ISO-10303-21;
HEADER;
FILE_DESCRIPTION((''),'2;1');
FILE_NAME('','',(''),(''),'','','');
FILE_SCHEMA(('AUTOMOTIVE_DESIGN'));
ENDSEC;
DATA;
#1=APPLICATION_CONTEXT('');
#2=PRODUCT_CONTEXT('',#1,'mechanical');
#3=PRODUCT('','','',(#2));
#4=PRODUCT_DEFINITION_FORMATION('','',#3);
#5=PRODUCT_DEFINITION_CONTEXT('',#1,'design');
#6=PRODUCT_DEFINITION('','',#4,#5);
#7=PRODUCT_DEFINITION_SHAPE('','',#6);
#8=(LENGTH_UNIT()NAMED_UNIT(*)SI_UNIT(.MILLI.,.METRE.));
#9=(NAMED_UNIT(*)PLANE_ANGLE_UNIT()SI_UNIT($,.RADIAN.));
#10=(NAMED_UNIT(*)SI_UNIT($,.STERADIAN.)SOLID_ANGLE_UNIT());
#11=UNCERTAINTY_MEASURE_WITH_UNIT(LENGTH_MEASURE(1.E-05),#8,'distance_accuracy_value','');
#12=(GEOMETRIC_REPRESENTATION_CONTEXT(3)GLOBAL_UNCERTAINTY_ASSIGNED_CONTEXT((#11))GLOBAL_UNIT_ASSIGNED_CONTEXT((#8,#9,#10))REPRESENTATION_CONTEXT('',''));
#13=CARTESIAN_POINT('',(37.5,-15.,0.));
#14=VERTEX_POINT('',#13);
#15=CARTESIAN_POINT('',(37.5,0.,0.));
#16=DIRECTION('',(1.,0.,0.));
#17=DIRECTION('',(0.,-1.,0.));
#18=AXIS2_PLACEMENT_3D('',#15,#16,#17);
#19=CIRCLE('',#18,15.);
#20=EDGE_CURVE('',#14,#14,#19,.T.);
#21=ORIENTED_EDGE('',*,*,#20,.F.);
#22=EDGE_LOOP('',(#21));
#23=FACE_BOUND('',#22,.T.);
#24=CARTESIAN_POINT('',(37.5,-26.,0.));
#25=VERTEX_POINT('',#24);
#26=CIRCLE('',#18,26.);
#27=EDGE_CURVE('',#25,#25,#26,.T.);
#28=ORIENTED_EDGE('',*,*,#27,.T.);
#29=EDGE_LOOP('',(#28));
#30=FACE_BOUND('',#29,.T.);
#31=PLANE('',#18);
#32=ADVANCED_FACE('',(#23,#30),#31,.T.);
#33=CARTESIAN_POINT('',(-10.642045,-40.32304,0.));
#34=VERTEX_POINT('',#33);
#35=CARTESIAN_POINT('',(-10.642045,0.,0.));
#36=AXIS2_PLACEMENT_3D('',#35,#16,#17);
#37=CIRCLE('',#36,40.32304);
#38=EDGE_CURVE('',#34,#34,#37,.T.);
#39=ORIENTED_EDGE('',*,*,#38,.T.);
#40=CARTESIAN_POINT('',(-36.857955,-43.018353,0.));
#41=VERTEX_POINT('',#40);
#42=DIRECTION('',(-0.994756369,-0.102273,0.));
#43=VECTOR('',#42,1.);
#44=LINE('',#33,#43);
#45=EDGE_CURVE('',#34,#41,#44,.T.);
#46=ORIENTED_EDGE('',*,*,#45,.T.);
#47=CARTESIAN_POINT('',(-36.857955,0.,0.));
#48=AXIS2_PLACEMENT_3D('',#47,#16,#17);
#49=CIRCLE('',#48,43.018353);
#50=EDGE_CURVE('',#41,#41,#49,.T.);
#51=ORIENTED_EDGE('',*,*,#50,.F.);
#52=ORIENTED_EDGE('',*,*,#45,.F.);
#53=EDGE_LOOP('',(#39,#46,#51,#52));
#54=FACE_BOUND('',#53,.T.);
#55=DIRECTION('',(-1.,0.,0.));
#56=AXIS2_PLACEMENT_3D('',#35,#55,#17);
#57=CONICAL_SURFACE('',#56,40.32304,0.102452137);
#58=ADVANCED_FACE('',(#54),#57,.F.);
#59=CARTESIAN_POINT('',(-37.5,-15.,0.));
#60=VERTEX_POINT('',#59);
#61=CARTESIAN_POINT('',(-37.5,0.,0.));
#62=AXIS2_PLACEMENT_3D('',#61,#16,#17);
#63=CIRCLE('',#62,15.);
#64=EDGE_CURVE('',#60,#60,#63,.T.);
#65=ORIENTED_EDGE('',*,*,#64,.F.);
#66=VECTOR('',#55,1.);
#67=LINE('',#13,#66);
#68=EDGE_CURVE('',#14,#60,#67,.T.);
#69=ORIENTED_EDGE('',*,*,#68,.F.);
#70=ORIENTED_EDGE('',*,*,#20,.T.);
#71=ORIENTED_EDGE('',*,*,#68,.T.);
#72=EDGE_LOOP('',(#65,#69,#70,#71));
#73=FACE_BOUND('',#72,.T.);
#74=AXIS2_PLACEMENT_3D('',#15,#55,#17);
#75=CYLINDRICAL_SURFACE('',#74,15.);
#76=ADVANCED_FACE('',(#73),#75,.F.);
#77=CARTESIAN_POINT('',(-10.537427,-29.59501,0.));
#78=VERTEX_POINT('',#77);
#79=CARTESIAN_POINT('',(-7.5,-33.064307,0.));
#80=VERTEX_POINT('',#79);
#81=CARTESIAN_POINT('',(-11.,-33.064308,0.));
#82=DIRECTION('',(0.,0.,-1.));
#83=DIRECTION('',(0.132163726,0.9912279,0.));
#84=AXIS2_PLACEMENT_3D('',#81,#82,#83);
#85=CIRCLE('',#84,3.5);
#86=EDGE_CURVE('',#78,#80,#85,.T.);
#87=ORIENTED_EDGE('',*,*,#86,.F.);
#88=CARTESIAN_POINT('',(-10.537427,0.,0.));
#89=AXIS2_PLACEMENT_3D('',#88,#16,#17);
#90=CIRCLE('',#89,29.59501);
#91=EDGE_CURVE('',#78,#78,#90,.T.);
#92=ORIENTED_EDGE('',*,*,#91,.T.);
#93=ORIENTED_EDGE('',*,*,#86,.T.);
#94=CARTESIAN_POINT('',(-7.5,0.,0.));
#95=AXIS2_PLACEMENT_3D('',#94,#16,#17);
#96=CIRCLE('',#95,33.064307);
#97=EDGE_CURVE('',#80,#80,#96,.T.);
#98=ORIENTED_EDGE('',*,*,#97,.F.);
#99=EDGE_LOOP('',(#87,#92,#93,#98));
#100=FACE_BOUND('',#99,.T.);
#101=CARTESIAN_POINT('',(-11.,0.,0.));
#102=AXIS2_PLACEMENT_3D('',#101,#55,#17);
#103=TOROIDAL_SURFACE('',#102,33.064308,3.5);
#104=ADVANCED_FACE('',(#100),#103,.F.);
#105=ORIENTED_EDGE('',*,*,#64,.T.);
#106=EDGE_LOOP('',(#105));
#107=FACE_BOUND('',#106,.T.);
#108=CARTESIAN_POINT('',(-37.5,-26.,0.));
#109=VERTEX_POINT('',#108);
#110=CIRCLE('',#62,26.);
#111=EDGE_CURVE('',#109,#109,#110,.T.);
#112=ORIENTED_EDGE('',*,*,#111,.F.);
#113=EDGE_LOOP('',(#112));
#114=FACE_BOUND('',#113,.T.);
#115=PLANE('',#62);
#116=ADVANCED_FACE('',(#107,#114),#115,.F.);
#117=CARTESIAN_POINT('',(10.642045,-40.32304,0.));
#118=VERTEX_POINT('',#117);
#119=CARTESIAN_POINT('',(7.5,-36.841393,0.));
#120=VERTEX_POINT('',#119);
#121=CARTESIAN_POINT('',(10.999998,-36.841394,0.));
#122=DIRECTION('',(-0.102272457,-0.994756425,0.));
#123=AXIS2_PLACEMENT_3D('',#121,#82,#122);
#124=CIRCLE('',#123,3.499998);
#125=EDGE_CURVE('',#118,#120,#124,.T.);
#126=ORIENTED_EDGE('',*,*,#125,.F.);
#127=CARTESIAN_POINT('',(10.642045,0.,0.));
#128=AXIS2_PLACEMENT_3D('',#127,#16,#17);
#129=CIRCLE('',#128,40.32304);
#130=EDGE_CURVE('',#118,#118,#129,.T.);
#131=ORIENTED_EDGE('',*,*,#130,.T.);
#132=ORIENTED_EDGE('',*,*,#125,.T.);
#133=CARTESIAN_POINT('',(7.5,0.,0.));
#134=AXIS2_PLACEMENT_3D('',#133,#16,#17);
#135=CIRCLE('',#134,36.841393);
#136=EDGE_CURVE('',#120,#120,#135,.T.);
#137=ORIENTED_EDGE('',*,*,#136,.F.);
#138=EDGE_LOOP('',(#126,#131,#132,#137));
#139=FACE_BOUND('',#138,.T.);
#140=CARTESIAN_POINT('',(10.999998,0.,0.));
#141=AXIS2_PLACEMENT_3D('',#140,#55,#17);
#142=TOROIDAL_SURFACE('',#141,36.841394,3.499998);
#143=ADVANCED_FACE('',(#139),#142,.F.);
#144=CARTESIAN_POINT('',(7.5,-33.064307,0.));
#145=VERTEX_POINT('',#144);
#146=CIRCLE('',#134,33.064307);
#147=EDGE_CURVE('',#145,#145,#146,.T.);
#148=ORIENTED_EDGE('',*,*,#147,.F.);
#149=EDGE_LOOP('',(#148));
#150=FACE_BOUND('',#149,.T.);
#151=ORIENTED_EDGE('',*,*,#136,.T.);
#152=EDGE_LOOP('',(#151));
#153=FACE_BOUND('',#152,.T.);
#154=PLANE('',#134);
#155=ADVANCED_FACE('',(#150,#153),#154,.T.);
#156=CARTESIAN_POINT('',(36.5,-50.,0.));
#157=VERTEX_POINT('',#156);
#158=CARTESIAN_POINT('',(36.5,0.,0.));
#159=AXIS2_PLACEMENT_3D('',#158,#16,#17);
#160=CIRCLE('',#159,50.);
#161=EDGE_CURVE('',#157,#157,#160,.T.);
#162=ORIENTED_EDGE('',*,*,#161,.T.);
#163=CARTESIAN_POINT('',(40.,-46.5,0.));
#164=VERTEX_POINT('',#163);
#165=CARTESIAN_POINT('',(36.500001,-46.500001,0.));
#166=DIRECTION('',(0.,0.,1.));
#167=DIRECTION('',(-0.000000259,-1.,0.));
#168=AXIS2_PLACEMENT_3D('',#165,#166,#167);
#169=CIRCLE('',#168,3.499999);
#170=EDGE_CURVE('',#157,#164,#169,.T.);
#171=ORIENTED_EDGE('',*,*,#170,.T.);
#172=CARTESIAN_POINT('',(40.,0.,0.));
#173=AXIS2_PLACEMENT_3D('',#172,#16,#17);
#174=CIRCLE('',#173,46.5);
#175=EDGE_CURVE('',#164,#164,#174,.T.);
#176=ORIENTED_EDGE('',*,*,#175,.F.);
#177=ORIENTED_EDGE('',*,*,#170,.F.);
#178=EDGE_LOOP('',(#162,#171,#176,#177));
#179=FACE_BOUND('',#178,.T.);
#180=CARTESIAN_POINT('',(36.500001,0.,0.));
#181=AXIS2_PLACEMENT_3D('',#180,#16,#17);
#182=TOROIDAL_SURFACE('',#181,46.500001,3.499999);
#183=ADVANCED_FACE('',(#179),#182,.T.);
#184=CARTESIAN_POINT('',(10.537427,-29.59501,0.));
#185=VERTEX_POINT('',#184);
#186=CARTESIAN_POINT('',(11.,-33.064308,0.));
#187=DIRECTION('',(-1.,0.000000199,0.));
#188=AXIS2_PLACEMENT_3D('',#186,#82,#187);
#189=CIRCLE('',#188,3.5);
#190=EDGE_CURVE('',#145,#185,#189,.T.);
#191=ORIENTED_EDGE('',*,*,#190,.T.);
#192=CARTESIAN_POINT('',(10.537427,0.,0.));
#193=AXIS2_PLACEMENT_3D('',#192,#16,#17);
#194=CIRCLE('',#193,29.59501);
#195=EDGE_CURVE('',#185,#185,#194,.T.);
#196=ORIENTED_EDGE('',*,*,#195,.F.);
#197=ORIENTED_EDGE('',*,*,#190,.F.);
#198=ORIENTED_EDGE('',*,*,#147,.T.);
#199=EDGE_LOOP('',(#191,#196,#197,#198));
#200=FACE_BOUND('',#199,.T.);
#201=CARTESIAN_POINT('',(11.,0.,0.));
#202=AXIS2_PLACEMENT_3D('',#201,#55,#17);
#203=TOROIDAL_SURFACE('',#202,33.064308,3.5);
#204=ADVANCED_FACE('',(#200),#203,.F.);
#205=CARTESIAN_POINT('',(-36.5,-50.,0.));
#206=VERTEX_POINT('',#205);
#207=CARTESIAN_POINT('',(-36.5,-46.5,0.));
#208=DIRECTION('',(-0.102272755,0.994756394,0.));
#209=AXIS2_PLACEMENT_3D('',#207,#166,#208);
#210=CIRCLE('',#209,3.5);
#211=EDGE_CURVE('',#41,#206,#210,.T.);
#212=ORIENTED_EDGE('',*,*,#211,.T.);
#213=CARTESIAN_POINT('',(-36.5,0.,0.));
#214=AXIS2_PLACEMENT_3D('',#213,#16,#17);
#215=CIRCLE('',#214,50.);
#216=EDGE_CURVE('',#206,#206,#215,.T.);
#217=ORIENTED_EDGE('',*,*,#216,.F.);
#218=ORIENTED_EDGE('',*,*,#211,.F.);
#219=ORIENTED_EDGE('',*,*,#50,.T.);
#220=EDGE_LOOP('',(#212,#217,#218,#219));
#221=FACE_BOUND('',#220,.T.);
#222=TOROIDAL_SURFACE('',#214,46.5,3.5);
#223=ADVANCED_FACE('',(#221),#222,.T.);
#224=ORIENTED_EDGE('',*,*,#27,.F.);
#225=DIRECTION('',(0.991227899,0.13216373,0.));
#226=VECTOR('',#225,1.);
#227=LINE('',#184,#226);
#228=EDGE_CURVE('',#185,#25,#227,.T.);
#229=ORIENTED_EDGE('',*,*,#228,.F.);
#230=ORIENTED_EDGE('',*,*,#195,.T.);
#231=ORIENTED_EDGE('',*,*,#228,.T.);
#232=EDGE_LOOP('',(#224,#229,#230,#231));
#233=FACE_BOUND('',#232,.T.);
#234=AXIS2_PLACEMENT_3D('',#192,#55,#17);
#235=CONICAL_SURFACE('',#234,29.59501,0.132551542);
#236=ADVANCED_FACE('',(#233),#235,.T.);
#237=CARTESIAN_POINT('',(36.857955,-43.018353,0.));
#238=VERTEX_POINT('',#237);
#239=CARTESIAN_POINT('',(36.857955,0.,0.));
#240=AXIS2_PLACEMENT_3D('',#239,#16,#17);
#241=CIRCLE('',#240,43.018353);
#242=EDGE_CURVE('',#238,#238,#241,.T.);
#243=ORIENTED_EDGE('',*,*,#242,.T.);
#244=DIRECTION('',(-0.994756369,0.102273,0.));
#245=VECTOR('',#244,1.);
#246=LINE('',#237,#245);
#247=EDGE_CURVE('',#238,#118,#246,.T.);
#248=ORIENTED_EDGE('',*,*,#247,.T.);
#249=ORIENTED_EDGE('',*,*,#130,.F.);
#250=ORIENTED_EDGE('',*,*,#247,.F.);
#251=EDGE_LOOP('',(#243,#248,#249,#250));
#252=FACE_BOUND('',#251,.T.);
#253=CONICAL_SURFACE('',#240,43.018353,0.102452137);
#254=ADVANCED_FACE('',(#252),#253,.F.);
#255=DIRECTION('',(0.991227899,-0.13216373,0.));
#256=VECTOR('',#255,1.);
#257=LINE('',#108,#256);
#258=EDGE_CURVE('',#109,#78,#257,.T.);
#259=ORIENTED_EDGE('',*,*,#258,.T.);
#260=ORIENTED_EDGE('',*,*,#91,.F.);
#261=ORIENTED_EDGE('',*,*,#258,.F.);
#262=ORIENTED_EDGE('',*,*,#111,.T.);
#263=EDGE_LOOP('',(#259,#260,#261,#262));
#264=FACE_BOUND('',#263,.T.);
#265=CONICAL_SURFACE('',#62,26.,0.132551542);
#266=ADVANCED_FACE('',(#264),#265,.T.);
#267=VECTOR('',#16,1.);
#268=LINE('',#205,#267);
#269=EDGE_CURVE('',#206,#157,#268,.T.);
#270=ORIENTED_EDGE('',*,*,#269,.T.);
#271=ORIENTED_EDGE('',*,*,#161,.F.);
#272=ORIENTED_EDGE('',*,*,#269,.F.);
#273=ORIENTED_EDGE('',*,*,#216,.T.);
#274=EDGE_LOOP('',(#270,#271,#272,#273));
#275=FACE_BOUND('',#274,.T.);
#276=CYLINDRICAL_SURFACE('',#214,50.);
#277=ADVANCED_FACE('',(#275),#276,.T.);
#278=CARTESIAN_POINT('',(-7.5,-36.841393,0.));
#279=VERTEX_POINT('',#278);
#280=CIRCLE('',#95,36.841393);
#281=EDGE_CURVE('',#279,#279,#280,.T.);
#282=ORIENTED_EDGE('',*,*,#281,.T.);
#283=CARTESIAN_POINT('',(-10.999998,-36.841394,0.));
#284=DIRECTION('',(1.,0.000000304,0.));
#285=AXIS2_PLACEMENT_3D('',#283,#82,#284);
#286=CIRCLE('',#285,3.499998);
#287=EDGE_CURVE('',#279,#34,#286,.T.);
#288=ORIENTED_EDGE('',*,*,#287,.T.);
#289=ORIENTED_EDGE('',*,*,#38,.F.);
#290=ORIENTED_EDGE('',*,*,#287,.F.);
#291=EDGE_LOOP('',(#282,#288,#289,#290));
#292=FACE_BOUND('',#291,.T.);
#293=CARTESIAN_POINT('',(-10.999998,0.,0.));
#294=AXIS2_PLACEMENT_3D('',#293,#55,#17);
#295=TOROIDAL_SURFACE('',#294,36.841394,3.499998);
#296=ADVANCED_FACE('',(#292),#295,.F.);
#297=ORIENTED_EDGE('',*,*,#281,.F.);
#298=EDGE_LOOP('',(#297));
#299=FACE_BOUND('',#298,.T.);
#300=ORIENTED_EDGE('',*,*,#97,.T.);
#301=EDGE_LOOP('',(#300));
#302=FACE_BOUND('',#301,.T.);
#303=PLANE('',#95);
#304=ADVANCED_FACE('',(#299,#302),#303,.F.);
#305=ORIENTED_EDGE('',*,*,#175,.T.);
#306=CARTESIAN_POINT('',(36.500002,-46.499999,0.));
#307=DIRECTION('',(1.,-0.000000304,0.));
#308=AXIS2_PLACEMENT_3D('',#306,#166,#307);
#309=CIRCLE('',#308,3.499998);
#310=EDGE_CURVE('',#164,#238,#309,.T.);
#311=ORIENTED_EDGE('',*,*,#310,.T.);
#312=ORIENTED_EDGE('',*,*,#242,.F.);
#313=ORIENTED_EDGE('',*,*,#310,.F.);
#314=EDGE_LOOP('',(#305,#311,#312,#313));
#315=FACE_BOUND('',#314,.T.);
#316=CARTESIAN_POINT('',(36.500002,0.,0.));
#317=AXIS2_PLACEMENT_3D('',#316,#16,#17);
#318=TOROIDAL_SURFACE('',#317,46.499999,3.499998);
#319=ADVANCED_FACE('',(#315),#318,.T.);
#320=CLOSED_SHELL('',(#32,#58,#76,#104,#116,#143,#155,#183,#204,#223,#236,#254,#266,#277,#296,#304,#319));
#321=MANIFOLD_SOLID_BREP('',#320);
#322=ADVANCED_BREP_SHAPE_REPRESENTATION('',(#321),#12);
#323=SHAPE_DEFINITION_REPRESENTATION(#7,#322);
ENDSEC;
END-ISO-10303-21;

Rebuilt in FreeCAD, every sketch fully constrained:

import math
import FreeCAD as App
import Part
import Sketcher
from FreeCAD import Vector
Q = App.Units.Quantity

doc = App.newDocument("Part")
body = doc.addObject("PartDesign::Body", "Body")

# Sketch on XY plane
sketch1 = body.newObject("Sketcher::SketchObject", "Sketch")
sketch1.AttachmentSupport = (doc.getObject("XY_Plane"), [""])
sketch1.MapMode = "FlatFace"
sketch1.addGeometry([
    Part.LineSegment(Vector(37.5, -15, 0), Vector(-37.5, -15, 0)),  # 0
    Part.LineSegment(Vector(-37.5, -15, 0), Vector(-37.5, -26, 0)),  # 1
    Part.LineSegment(Vector(-37.5, -26, 0), Vector(-10.537427, -29.59501, 0)),  # 2
    Part.ArcOfCircle(Part.Circle(Vector(-11, -33.064308, 0), Vector(0, 0, 1), 3.5), math.radians(0.000011), math.radians(82.405356)),  # 3
    Part.LineSegment(Vector(-7.5, -33.064307, 0), Vector(-7.5, -36.841393, 0)),  # 4
    Part.ArcOfCircle(Part.Circle(Vector(-10.999998, -36.841394, 0), Vector(0, 0, 1), 3.499998), math.radians(-84.129956), math.radians(0.000017)),  # 5
    Part.LineSegment(Vector(-10.642045, -40.32304, 0), Vector(-36.857955, -43.018353, 0)),  # 6
    Part.ArcOfCircle(Part.Circle(Vector(-36.5, -46.5, 0), Vector(0, 0, 1), 3.5), math.radians(95.870061), math.radians(270.000006)),  # 7
    Part.LineSegment(Vector(-36.5, -50, 0), Vector(36.5, -50, 0)),  # 8
    Part.ArcOfCircle(Part.Circle(Vector(36.500001, -46.500001, 0), Vector(0, 0, 1), 3.499999), math.radians(-90.000015), math.radians(0.000015)),  # 9
    Part.ArcOfCircle(Part.Circle(Vector(36.500002, -46.499999, 0), Vector(0, 0, 1), 3.499998), math.radians(-0.000017), math.radians(84.129956)),  # 10
    Part.LineSegment(Vector(36.857955, -43.018353, 0), Vector(10.642045, -40.32304, 0)),  # 11
    Part.ArcOfCircle(Part.Circle(Vector(10.999998, -36.841394, 0), Vector(0, 0, 1), 3.499998), math.radians(179.999983), math.radians(264.129956)),  # 12
    Part.LineSegment(Vector(7.5, -36.841393, 0), Vector(7.5, -33.064307, 0)),  # 13
    Part.ArcOfCircle(Part.Circle(Vector(11, -33.064308, 0), Vector(0, 0, 1), 3.5), math.radians(97.594644), math.radians(179.999989)),  # 14
    Part.LineSegment(Vector(10.537427, -29.59501, 0), Vector(37.5, -26, 0)),  # 15
    Part.LineSegment(Vector(37.5, -26, 0), Vector(37.5, -15, 0)),  # 16
], False)
sketch1.addConstraint([
    Sketcher.Constraint("Coincident", 0, 2, 1, 1),
    Sketcher.Constraint("Coincident", 1, 2, 2, 1),
    Sketcher.Constraint("Tangent", 2, 2, 3, 2),
    Sketcher.Constraint("Tangent", 3, 1, 4, 1),
    Sketcher.Constraint("Tangent", 4, 2, 5, 2),
    Sketcher.Constraint("Tangent", 5, 1, 6, 1),
    Sketcher.Constraint("Tangent", 6, 2, 7, 1),
    Sketcher.Constraint("Tangent", 7, 2, 8, 1),
    Sketcher.Constraint("Tangent", 8, 2, 9, 1),
    Sketcher.Constraint("Tangent", 9, 2, 10, 1),
    Sketcher.Constraint("Tangent", 10, 2, 11, 1),
    Sketcher.Constraint("Tangent", 11, 2, 12, 2),
    Sketcher.Constraint("Tangent", 12, 1, 13, 1),
    Sketcher.Constraint("Tangent", 13, 2, 14, 2),
    Sketcher.Constraint("Tangent", 14, 1, 15, 1),
    Sketcher.Constraint("Coincident", 15, 2, 16, 1),
    Sketcher.Constraint("Coincident", 16, 2, 0, 1),
    Sketcher.Constraint("Horizontal", 0),
    Sketcher.Constraint("Vertical", 1),
    Sketcher.Constraint("Vertical", 4),
    Sketcher.Constraint("Horizontal", 8),
    Sketcher.Constraint("Vertical", 13),
    Sketcher.Constraint("Vertical", 16),
    Sketcher.Constraint("Equal", 3, 5),
    Sketcher.Constraint("Equal", 5, 7),
    Sketcher.Constraint("Equal", 7, 9),
    Sketcher.Constraint("Equal", 9, 10),
    Sketcher.Constraint("Equal", 10, 12),
    Sketcher.Constraint("Equal", 12, 14),
    Sketcher.Constraint("Symmetric", 5, 3, 12, 3, -2),
    Sketcher.Constraint("Symmetric", 2, 2, 14, 1, -2),
    Sketcher.Constraint("Horizontal", 10, 3, 9, 2),
    Sketcher.Constraint("Horizontal", 1, 2, 15, 2),
    Sketcher.Constraint("Equal", 6, 11),
    Sketcher.Constraint("Radius", 3, Q("3.5 mm")),
    Sketcher.Constraint("DistanceX", 0, 2, 0, 1, Q("75 mm")),
    Sketcher.Constraint("DistanceX", 8, 1, 8, 2, Q("73 mm")),
    Sketcher.Constraint("DistanceY", 1, 2, 1, 1, Q("11 mm")),
    Sketcher.Constraint("DistanceX", 3, 3, -1, 1, Q("11 mm")),
    Sketcher.Constraint("DistanceY", 0, 2, -1, 1, Q("15 mm")),
    Sketcher.Constraint("DistanceY", 7, 2, -1, 1, Q("50 mm")),
    Sketcher.Constraint("Distance", 6, Q("26.354101 mm")),
    Sketcher.Constraint("DistanceY", 4, 2, 4, 1, Q("3.777086 mm")),
])
revolution = body.newObject("PartDesign::Revolution", "Revolution")
revolution.Profile = sketch1
revolution.ReferenceAxis = (sketch1, ["H_Axis"])
revolution.Angle = 360

doc.recompute()
